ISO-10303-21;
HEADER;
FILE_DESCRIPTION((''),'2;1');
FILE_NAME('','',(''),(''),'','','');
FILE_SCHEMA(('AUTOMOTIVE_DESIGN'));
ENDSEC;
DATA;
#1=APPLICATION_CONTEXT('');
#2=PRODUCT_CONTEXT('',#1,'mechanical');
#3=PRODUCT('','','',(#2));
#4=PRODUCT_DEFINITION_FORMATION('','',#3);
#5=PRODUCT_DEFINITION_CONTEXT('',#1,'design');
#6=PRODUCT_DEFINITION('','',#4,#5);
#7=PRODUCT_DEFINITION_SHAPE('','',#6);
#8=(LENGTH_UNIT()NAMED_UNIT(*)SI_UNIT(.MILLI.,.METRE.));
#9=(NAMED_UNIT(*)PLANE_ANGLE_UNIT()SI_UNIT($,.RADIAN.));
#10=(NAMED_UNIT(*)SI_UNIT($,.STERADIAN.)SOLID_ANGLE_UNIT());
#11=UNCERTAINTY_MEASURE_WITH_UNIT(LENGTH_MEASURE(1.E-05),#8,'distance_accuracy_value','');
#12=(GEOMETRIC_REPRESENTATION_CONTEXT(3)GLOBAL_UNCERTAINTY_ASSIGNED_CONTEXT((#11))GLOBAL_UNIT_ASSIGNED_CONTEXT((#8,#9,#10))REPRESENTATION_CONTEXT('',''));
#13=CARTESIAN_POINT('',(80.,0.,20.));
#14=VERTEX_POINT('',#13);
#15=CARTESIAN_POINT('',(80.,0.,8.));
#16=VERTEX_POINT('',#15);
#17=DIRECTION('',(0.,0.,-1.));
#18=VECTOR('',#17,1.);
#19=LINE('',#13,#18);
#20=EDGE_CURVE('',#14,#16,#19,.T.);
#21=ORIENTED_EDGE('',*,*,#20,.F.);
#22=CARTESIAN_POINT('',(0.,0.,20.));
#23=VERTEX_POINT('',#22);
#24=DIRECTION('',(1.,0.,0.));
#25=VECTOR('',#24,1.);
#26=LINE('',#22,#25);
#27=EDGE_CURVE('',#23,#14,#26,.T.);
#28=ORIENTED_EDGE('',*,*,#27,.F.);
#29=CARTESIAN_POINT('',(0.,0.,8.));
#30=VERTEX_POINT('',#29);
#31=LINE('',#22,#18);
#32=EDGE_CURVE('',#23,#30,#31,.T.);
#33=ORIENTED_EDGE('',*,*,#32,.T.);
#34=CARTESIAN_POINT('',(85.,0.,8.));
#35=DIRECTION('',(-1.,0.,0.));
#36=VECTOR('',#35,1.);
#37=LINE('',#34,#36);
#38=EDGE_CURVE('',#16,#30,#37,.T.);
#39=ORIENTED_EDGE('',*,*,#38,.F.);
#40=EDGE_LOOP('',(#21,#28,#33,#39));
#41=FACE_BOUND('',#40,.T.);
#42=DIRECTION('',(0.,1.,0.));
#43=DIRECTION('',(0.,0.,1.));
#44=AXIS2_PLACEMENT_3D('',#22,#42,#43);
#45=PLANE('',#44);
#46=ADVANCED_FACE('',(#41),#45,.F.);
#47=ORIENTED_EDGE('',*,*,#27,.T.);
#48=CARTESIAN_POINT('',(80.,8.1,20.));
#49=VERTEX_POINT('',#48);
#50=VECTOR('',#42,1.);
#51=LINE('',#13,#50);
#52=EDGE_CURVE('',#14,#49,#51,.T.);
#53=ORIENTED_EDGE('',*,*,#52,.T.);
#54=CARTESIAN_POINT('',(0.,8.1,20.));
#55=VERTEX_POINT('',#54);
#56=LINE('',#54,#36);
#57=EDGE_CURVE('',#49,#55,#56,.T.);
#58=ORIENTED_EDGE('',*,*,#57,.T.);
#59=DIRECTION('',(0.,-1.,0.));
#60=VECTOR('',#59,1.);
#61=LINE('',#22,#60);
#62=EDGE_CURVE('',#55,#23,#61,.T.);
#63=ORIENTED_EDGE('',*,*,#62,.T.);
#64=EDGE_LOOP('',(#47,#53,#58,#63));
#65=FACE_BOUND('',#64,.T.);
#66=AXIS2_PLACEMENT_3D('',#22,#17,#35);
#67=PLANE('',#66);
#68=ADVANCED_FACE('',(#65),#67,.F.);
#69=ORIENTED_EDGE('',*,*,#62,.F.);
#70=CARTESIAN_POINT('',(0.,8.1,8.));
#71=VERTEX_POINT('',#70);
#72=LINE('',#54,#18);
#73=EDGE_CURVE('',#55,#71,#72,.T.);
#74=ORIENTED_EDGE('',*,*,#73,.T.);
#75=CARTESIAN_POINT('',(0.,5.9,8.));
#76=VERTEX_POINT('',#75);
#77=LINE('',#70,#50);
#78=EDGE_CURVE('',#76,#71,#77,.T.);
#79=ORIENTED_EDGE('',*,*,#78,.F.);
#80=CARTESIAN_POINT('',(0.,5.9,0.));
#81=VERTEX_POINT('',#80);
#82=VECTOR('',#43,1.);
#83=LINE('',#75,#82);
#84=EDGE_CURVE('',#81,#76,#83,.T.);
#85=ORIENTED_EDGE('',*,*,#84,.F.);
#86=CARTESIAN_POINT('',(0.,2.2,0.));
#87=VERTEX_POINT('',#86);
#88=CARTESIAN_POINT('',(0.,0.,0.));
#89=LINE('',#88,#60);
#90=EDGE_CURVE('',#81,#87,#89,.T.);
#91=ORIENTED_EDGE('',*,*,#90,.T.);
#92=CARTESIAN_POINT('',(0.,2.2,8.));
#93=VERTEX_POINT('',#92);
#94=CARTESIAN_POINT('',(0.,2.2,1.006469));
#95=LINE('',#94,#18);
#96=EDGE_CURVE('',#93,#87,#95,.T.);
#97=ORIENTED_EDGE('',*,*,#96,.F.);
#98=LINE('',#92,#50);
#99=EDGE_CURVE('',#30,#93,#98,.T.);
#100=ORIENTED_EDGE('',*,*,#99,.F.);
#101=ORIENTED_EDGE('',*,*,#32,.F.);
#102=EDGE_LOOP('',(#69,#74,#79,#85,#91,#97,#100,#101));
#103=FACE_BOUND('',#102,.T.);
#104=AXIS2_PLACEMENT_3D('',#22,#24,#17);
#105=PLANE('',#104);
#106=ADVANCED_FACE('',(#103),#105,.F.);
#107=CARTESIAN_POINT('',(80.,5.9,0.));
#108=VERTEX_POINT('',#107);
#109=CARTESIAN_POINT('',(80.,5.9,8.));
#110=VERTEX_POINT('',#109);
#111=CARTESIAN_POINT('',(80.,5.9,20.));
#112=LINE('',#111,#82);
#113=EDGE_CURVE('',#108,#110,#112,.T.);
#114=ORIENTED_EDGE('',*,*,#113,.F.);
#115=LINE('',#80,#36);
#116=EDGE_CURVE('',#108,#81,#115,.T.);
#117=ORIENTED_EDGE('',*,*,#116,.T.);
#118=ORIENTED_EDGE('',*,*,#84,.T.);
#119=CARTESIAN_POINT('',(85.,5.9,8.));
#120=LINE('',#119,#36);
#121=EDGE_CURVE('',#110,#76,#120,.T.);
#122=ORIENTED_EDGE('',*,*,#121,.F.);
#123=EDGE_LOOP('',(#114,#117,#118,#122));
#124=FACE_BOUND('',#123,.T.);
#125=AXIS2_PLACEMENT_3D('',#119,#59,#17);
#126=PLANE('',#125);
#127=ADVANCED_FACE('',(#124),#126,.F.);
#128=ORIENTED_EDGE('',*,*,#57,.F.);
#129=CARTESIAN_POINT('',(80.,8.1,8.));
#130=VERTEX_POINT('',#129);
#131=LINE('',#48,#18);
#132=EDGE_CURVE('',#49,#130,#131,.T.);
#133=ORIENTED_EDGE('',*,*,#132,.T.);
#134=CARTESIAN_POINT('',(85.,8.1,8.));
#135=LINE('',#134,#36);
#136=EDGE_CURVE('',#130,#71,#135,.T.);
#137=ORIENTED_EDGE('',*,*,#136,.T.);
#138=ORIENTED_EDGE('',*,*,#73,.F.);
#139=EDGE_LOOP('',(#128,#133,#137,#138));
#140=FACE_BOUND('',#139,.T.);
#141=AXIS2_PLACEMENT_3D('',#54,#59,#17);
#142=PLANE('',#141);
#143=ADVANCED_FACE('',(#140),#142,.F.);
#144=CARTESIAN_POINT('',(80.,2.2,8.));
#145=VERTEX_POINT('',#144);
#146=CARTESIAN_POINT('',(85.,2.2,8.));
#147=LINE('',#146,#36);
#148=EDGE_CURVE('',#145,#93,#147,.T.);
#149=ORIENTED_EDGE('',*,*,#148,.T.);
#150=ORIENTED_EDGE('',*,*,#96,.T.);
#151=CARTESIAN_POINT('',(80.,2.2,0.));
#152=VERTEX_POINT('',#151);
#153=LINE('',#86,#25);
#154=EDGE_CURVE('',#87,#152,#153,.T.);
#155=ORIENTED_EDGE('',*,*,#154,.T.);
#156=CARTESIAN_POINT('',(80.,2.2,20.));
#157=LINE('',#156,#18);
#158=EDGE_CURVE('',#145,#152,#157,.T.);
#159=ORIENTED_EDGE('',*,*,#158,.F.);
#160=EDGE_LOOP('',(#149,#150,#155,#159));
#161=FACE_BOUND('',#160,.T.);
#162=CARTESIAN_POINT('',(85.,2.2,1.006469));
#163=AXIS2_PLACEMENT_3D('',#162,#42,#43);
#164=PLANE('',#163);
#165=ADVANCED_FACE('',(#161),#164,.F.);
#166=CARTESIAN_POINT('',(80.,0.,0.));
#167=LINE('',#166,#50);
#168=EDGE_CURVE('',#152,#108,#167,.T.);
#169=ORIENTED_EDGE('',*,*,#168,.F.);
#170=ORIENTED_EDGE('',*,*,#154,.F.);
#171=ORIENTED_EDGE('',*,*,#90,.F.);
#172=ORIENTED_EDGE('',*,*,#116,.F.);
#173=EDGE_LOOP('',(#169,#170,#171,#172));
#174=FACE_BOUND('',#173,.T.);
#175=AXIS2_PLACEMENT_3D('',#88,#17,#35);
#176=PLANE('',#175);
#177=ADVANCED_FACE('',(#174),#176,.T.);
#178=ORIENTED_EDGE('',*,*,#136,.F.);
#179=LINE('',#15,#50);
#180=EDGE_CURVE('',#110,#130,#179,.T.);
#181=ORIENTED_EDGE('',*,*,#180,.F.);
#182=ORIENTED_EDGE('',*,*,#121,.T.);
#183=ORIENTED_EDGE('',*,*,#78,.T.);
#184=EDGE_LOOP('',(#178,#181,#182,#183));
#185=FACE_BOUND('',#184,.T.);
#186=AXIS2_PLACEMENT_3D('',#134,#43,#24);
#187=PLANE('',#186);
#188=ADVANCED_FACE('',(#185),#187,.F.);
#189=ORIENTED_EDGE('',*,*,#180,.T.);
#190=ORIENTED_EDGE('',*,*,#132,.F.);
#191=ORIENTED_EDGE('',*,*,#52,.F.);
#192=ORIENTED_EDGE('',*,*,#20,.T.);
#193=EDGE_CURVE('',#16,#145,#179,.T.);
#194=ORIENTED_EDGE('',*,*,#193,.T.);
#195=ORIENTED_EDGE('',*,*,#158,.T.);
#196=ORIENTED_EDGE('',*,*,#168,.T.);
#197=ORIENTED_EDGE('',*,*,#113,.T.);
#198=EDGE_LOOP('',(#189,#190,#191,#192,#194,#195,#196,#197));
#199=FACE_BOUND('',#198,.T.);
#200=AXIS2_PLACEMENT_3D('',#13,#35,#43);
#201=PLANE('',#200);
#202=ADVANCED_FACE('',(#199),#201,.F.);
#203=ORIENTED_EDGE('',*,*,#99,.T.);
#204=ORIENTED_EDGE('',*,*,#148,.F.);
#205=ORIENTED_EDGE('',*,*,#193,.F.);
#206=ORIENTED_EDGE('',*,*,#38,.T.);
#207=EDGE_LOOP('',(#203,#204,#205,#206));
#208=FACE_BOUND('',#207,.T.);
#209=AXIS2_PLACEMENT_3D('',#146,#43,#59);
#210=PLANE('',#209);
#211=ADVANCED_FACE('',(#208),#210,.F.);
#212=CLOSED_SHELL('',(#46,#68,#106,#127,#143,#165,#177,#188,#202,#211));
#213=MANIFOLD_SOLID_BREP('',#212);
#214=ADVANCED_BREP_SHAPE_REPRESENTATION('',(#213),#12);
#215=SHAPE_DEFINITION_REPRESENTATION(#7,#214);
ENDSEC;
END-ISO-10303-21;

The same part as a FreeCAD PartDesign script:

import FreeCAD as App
import Part
import Sketcher
from FreeCAD import Vector
Q = App.Units.Quantity


def add_polygon(sketch, points):
    """Adds a closed chain of lines whose ends are joined by coincident constraints."""
    first, n = sketch.GeometryCount, len(points)
    for a, b in zip(points, points[1:] + points[:1]):
        sketch.addGeometry(Part.LineSegment(App.Vector(*a, 0), App.Vector(*b, 0)), False)
    for i in range(n):
        sketch.addConstraint(Sketcher.Constraint("Coincident", first + i, 2, first + (i + 1) % n, 1))

doc = App.newDocument("Part")
body = doc.addObject("PartDesign::Body", "Body")

# Sketch on XY plane
sketch1 = body.newObject("Sketcher::SketchObject", "Sketch")
sketch1.AttachmentSupport = (doc.getObject("XY_Plane"), [""])
sketch1.MapMode = "FlatFace"
add_polygon(sketch1, [(0, 8.1), (0, 0), (80, 0), (80, 8.1)])  # lines 0-3
sketch1.addConstraint(Sketcher.Constraint("Vertical", 0))
sketch1.addConstraint(Sketcher.Constraint("Horizontal", 1))
sketch1.addConstraint(Sketcher.Constraint("Vertical", 2))
sketch1.addConstraint(Sketcher.Constraint("Horizontal", 3))
sketch1.addConstraint(Sketcher.Constraint("Coincident", 0, 2, -1, 1))
sketch1.addConstraint(Sketcher.Constraint("DistanceX", 1, 1, 1, 2, Q("80 mm")))
sketch1.addConstraint(Sketcher.Constraint("DistanceY", 0, 2, 0, 1, Q("8.1 mm")))
pad1 = body.newObject("PartDesign::Pad", "Pad")
pad1.Profile = sketch1
pad1.Length = 20

# Sketch on YZ plane
sketch2 = body.newObject("Sketcher::SketchObject", "Sketch001")
sketch2.AttachmentSupport = (doc.getObject("YZ_Plane"), [""])
sketch2.MapMode = "FlatFace"
add_polygon(sketch2, [(8.1, 8), (8.1, 0), (5.9, 0), (5.9, 8)])  # lines 0-3
add_polygon(sketch2, [(0, 0), (0, 8), (2.2, 8), (2.2, 0)])  # lines 4-7
sketch2.addConstraint(Sketcher.Constraint("Vertical", 0))
sketch2.addConstraint(Sketcher.Constraint("Horizontal", 1))
sketch2.addConstraint(Sketcher.Constraint("Vertical", 2))
sketch2.addConstraint(Sketcher.Constraint("Horizontal", 3))
sketch2.addConstraint(Sketcher.Constraint("Vertical", 4))
sketch2.addConstraint(Sketcher.Constraint("Horizontal", 5))
sketch2.addConstraint(Sketcher.Constraint("Vertical", 6))
sketch2.addConstraint(Sketcher.Constraint("Horizontal", 7))
sketch2.addConstraint(Sketcher.Constraint("Coincident", 7, 2, -1, 1))
sketch2.addConstraint(Sketcher.Constraint("PointOnObject", 0, 2, -1))
sketch2.addConstraint(Sketcher.Constraint("Horizontal", 3, 2, 4, 2))
sketch2.addConstraint(Sketcher.Constraint("Equal", 3, 5))
sketch2.addConstraint(Sketcher.Constraint("DistanceY", 0, 2, 0, 1, Q("8 mm")))
sketch2.addConstraint(Sketcher.Constraint("DistanceX", 1, 2, 1, 1, Q("2.2 mm")))
sketch2.addConstraint(Sketcher.Constraint("DistanceX", -1, 1, 0, 2, Q("8.1 mm")))
pocket1 = body.newObject("PartDesign::Pocket", "Pocket")
pocket1.Profile = sketch2
pocket1.Length = 85
pocket1.Reversed = True

doc.recompute()
